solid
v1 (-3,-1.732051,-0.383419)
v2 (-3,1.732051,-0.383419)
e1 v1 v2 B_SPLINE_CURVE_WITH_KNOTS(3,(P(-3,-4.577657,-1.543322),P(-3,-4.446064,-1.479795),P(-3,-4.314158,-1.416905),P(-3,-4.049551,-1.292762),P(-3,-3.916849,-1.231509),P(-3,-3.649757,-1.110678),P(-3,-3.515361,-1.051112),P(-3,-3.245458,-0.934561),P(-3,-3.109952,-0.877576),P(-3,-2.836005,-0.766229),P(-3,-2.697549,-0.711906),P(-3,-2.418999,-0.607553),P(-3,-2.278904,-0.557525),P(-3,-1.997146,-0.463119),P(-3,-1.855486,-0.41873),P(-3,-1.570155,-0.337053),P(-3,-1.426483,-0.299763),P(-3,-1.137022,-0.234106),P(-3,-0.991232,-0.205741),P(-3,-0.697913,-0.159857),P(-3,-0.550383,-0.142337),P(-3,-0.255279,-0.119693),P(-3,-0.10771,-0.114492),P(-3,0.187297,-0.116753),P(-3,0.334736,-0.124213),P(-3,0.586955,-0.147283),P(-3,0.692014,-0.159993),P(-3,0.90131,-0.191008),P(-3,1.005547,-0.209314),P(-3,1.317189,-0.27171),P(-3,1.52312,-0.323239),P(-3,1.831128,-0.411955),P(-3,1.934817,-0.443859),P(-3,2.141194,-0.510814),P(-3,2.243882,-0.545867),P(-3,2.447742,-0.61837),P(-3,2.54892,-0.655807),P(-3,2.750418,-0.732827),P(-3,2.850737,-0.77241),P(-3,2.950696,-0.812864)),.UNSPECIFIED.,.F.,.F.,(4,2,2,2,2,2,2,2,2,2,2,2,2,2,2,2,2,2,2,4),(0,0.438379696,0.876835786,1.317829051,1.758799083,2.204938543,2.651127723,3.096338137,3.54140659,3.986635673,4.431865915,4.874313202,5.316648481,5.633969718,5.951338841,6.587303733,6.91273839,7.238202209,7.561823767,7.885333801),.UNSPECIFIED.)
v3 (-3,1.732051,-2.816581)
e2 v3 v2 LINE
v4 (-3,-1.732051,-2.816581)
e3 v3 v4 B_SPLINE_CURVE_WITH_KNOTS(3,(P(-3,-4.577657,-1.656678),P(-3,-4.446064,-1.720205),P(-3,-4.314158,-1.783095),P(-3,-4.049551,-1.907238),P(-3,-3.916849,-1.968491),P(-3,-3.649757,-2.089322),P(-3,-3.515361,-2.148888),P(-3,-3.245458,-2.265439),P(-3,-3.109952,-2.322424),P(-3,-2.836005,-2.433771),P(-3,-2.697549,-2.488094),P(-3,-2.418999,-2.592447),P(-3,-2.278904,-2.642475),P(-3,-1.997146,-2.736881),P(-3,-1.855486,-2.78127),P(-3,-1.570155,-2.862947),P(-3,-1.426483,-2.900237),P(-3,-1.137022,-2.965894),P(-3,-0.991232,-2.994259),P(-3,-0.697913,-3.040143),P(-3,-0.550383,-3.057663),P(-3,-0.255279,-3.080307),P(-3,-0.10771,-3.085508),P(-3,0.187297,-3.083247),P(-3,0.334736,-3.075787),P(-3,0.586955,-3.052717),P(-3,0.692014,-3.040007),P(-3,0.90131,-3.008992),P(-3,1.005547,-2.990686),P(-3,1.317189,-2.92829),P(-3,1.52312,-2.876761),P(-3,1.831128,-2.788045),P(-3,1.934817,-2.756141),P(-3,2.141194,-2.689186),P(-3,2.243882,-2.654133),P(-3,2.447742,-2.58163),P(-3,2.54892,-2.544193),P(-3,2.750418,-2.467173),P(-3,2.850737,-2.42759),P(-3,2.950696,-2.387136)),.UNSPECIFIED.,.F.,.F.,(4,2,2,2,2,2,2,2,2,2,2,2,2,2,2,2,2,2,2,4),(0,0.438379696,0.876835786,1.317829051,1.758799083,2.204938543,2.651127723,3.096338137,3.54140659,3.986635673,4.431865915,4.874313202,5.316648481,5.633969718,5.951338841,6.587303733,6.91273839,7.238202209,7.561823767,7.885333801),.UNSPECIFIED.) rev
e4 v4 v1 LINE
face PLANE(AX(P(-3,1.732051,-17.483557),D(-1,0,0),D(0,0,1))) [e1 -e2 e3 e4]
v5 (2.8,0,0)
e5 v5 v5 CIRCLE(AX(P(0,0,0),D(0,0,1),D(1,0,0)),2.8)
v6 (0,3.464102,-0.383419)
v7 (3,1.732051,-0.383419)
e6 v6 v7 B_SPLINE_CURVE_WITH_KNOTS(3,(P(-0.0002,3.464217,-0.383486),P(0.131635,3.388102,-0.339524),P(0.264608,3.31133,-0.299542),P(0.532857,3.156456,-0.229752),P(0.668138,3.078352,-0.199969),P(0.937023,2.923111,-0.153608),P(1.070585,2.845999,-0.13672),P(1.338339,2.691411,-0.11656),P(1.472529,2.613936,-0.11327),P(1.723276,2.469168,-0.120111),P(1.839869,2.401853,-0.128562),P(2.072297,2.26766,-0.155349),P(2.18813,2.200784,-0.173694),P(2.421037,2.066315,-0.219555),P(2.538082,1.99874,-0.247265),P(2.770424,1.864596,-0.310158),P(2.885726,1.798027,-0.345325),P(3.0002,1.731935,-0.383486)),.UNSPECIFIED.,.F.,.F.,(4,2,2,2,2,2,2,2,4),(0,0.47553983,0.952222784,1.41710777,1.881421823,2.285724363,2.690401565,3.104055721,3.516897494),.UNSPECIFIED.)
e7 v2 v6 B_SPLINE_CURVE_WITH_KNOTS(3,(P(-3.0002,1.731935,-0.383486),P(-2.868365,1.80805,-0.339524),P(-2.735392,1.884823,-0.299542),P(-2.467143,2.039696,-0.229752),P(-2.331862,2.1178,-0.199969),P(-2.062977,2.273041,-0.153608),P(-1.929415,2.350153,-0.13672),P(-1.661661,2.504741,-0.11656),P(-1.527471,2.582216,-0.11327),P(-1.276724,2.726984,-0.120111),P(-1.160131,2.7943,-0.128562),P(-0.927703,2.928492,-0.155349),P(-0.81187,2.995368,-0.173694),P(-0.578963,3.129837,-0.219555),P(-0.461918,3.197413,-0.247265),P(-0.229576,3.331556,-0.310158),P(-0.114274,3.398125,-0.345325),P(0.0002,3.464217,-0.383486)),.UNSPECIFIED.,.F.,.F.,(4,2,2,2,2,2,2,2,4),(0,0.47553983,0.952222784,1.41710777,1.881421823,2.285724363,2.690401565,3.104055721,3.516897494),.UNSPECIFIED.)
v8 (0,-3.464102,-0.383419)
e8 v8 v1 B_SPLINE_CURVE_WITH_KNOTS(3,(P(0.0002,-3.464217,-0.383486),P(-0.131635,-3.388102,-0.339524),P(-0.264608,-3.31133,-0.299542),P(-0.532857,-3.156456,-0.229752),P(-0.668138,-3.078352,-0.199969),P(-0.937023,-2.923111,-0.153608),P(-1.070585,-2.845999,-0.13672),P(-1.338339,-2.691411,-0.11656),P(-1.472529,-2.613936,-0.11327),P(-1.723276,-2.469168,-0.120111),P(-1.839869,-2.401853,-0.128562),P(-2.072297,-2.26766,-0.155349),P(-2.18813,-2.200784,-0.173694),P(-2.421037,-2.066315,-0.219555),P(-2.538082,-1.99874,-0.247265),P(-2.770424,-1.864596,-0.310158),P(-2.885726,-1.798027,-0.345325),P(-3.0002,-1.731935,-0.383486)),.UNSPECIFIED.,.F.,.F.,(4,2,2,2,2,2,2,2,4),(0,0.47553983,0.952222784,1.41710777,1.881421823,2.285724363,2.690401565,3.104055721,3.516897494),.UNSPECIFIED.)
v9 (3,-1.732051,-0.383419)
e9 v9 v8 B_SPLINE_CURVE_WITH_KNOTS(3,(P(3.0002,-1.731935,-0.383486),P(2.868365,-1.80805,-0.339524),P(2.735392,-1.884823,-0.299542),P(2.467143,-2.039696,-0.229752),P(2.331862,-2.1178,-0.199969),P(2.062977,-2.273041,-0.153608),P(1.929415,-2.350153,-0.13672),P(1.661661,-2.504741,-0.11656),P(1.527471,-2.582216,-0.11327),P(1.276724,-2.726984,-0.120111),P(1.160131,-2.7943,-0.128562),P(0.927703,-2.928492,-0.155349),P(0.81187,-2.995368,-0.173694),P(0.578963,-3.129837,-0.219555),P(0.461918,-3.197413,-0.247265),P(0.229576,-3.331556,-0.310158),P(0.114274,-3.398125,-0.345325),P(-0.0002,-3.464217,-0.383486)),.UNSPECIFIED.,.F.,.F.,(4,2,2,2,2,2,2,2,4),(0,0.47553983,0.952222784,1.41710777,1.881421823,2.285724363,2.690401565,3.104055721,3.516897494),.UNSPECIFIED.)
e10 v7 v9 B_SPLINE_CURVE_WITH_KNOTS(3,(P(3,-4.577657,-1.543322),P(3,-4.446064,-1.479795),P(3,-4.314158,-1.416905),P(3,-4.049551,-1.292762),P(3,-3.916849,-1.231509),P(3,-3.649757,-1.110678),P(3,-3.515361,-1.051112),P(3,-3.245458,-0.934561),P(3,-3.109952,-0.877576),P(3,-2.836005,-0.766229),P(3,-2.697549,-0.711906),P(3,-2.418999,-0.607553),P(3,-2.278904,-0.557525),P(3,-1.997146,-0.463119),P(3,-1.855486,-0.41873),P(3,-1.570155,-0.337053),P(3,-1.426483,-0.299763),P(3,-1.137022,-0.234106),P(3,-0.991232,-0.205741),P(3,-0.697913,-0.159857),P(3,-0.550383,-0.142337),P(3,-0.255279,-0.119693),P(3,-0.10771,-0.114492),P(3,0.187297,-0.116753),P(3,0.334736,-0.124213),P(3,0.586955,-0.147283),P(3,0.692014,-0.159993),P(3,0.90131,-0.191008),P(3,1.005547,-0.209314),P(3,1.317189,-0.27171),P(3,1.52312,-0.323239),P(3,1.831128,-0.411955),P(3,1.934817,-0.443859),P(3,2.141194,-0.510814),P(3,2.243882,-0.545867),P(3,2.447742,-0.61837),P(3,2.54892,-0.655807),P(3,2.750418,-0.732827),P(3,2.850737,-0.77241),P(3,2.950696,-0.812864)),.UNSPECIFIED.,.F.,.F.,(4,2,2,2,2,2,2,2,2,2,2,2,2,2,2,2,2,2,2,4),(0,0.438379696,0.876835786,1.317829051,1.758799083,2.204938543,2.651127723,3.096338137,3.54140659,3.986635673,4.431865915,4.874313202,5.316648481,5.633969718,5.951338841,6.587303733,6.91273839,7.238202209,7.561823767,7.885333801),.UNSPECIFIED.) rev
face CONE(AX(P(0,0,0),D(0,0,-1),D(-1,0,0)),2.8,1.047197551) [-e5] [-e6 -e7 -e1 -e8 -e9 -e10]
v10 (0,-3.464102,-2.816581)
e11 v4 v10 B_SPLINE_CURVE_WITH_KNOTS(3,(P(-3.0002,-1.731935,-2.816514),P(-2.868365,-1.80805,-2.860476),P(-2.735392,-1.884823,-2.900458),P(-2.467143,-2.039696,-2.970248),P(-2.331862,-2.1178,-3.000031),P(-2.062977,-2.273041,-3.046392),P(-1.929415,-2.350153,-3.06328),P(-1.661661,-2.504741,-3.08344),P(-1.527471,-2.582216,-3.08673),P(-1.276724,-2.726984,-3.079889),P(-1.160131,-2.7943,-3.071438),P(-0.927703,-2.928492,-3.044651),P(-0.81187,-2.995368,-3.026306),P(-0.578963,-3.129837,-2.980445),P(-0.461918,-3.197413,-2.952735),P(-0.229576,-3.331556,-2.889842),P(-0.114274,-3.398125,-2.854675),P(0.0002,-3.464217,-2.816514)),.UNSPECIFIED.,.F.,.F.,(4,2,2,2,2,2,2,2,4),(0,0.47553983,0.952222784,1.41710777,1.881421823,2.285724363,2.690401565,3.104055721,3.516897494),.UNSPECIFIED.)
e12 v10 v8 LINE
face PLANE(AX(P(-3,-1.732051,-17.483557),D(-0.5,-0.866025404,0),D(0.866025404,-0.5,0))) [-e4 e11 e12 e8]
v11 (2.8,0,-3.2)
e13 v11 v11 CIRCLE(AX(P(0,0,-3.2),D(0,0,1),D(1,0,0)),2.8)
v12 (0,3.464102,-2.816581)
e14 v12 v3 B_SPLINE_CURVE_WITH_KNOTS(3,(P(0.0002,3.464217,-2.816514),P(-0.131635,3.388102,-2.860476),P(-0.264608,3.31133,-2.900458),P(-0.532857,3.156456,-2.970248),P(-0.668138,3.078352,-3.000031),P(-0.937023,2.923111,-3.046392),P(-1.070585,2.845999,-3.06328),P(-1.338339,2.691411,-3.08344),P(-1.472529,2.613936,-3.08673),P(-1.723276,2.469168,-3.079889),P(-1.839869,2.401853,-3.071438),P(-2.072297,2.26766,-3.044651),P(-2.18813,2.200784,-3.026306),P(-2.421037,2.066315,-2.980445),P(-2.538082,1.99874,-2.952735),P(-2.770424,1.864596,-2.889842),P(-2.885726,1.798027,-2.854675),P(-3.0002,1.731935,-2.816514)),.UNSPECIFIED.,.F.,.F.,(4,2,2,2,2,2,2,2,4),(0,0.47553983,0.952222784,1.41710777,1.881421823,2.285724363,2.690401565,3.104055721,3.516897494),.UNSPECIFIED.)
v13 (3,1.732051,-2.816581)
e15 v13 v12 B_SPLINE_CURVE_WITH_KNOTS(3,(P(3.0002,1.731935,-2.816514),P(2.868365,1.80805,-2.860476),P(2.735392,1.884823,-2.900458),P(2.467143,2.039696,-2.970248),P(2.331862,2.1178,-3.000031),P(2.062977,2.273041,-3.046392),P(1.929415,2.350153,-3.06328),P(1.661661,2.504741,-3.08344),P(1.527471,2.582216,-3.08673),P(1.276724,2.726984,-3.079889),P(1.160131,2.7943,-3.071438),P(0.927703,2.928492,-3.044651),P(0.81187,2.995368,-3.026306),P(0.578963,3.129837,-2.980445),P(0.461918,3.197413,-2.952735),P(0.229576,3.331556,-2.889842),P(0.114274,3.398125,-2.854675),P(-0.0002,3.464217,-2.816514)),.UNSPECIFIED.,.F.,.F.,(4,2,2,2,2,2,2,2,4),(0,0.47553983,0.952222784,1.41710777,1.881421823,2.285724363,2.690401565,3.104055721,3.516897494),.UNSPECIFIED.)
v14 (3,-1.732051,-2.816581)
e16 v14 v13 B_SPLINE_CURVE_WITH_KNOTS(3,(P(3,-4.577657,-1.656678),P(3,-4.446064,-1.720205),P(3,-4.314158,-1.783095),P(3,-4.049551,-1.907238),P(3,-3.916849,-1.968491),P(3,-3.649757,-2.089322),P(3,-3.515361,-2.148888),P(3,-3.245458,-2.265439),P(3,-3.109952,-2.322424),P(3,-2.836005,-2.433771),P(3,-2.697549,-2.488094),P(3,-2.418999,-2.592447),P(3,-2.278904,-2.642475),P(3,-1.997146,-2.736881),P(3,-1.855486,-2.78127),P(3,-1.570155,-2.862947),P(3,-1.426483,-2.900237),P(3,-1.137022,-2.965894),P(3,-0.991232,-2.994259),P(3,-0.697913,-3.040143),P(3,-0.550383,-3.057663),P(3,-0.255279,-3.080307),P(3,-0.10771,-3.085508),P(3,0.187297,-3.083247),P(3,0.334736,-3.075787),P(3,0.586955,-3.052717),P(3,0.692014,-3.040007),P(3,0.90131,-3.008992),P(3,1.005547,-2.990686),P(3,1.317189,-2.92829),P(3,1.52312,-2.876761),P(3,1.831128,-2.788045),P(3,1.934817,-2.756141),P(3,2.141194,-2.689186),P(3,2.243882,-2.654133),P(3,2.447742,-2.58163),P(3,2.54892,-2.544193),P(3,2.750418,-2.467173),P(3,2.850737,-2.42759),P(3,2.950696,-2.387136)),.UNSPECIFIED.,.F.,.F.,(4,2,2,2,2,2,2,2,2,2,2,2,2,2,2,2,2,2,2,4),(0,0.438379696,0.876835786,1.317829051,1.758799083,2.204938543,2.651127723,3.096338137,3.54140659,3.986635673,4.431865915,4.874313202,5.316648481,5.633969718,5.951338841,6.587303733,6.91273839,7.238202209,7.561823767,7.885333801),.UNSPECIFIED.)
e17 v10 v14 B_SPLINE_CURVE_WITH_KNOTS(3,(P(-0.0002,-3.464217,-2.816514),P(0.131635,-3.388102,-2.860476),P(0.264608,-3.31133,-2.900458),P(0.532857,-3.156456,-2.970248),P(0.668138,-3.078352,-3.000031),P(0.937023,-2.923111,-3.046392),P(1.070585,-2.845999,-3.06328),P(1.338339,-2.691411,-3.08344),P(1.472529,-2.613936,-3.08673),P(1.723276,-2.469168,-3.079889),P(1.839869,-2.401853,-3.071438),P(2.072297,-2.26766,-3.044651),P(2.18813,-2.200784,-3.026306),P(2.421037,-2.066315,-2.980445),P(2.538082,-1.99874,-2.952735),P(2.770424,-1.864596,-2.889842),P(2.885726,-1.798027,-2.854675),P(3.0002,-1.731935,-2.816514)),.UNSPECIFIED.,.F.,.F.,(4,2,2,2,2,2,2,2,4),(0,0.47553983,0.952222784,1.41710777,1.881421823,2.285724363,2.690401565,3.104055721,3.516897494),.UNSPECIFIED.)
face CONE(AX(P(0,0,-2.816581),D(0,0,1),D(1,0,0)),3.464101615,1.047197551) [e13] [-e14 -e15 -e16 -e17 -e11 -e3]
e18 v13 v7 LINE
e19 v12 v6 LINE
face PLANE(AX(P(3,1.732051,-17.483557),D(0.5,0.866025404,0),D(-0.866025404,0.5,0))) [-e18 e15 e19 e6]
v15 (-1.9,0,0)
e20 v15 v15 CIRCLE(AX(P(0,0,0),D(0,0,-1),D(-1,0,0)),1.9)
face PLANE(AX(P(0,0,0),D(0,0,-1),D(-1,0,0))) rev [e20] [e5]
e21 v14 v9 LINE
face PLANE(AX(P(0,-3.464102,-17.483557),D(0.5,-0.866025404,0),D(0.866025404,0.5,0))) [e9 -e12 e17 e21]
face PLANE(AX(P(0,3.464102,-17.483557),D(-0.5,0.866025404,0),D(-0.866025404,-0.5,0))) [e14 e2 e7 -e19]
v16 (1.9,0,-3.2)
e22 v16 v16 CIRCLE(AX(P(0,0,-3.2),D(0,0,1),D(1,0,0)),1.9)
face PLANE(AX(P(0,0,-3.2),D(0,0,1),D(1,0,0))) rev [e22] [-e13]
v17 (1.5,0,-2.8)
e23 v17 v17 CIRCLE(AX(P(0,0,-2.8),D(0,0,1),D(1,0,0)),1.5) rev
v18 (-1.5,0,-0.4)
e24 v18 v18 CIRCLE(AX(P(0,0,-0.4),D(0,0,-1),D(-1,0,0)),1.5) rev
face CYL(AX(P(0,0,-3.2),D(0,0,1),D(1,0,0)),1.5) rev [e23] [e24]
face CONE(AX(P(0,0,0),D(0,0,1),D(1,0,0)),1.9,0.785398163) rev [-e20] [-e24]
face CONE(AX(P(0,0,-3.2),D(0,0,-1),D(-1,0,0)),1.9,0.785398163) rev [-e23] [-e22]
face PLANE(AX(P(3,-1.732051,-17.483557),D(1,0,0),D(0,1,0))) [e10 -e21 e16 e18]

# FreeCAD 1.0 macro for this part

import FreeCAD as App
import Part
import Sketcher

V = App.Vector
Q = App.Units.Quantity


def edges_at(feature, points):
    """Names of the edges that pass closest to the given points."""
    edges = feature.Shape.Edges
    near = lambda p: min(range(len(edges)), key=lambda i: edges[i].distToShape(Part.Vertex(*p))[0])
    return sorted({f"Edge{near(p) + 1}" for p in points})

doc = App.newDocument("Part")
body = doc.addObject("PartDesign::Body", "Body")

# Sketch on XZ plane
sketch1 = body.newObject("Sketcher::SketchObject", "Sketch")
sketch1.AttachmentSupport = (doc.getObject("XZ_Plane"), [""])
sketch1.MapMode = "FlatFace"
sketch1.addGeometry(Part.LineSegment(V(-5, -3.2, 0), V(-5, 0, 0)), False)
sketch1.addGeometry(Part.LineSegment(V(-5, 0, 0), V(0, 0, 0)), False)
sketch1.addGeometry(Part.LineSegment(V(0, 0, 0), V(0, -3.2, 0)), False)
sketch1.addGeometry(Part.LineSegment(V(0, -3.2, 0), V(-5, -3.2, 0)), False)
sketch1.addConstraint(Sketcher.Constraint("Coincident", 0, 2, 1, 1))
sketch1.addConstraint(Sketcher.Constraint("Coincident", 1, 2, 2, 1))
sketch1.addConstraint(Sketcher.Constraint("Coincident", 2, 2, 3, 1))
sketch1.addConstraint(Sketcher.Constraint("Coincident", 3, 2, 0, 1))
sketch1.addConstraint(Sketcher.Constraint("Vertical", 0))
sketch1.addConstraint(Sketcher.Constraint("Horizontal", 1))
sketch1.addConstraint(Sketcher.Constraint("Vertical", 2))
sketch1.addConstraint(Sketcher.Constraint("Horizontal", 3))
sketch1.addConstraint(Sketcher.Constraint("Coincident", 1, 2, -1, 1))
sketch1.addConstraint(Sketcher.Constraint("DistanceX", 1, 1, 1, 2, 5.0))
sketch1.addConstraint(Sketcher.Constraint("DistanceY", 0, 1, 0, 2, 3.2))
revolution = body.newObject("PartDesign::Revolution", "Revolution")
revolution.Profile = sketch1
revolution.ReferenceAxis = (sketch1, ["V_Axis"])
revolution.Angle = 360

# Sketch on XY plane
sketch2 = body.newObject("Sketcher::SketchObject", "Sketch001")
sketch2.AttachmentSupport = (doc.getObject("XY_Plane"), [""])
sketch2.MapMode = "FlatFace"
sketch2.addGeometry(Part.LineSegment(V(-7.5, 7.5, 0), V(-7.5, -7.5, 0)), False)
sketch2.addGeometry(Part.LineSegment(V(-7.5, -7.5, 0), V(7.5, -7.5, 0)), False)
sketch2.addGeometry(Part.LineSegment(V(7.5, -7.5, 0), V(7.5, 7.5, 0)), False)
sketch2.addGeometry(Part.LineSegment(V(7.5, 7.5, 0), V(-7.5, 7.5, 0)), False)
sketch2.addGeometry(Part.LineSegment(V(3, 1.7, 0), V(3, -1.7, 0)), False)
sketch2.addGeometry(Part.LineSegment(V(3, -1.7, 0), V(0, -3.5, 0)), False)
sketch2.addGeometry(Part.LineSegment(V(0, -3.5, 0), V(-3, -1.7, 0)), False)
sketch2.addGeometry(Part.LineSegment(V(-3, -1.7, 0), V(-3, 1.7, 0)), False)
sketch2.addGeometry(Part.LineSegment(V(-3, 1.7, 0), V(0, 3.5, 0)), False)
sketch2.addGeometry(Part.LineSegment(V(0, 3.5, 0), V(3, 1.7, 0)), False)
sketch2.addConstraint(Sketcher.Constraint("Coincident", 0, 2, 1, 1))
sketch2.addConstraint(Sketcher.Constraint("Coincident", 1, 2, 2, 1))
sketch2.addConstraint(Sketcher.Constraint("Coincident", 2, 2, 3, 1))
sketch2.addConstraint(Sketcher.Constraint("Coincident", 3, 2, 0, 1))
sketch2.addConstraint(Sketcher.Constraint("Coincident", 4, 2, 5, 1))
sketch2.addConstraint(Sketcher.Constraint("Coincident", 5, 2, 6, 1))
sketch2.addConstraint(Sketcher.Constraint("Coincident", 6, 2, 7, 1))
sketch2.addConstraint(Sketcher.Constraint("Coincident", 7, 2, 8, 1))
sketch2.addConstraint(Sketcher.Constraint("Coincident", 8, 2, 9, 1))
sketch2.addConstraint(Sketcher.Constraint("Coincident", 9, 2, 4, 1))
sketch2.addConstraint(Sketcher.Constraint("Vertical", 0))
sketch2.addConstraint(Sketcher.Constraint("Horizontal", 1))
sketch2.addConstraint(Sketcher.Constraint("Vertical", 2))
sketch2.addConstraint(Sketcher.Constraint("Horizontal", 3))
sketch2.addConstraint(Sketcher.Constraint("Vertical", 4))
sketch2.addConstraint(Sketcher.Constraint("Vertical", 7))
sketch2.addConstraint(Sketcher.Constraint("Symmetric", 0, 2, 2, 2, -1, 1))
sketch2.addConstraint(Sketcher.Constraint("Symmetric", 4, 2, 7, 2, -1, 1))
sketch2.addConstraint(Sketcher.Constraint("Symmetric", 5, 2, 8, 2, -1, 1))
sketch2.addConstraint(Sketcher.Constraint("PointOnObject", 5, 2, -2))
sketch2.addConstraint(Sketcher.Constraint("Parallel", 6, 9))
sketch2.addConstraint(Sketcher.Constraint("Horizontal", 4, 2, 6, 2))
sketch2.addConstraint(Sketcher.Constraint("Equal", 3, 0))
sketch2.addConstraint(Sketcher.Constraint("Angle", 5, Q("-150 deg")))
sketch2.addConstraint(Sketcher.Constraint("DistanceX", 1, 1, 1, 2, 14.9))
sketch2.addConstraint(Sketcher.Constraint("DistanceX", -1, 1, 4, 2, 3.0))
sketch2.addConstraint(Sketcher.Constraint("DistanceY", 4, 2, 4, 1, 3.464102))
pocket1 = body.newObject("PartDesign::Pocket", "Pocket")
pocket1.Profile = sketch2
pocket1.Length = 3.2

# Sketch on XY plane
sketch3 = body.newObject("Sketcher::SketchObject", "Sketch002")
sketch3.AttachmentSupport = (doc.getObject("XY_Plane"), [""])
sketch3.MapMode = "FlatFace"
sketch3.addGeometry(Part.Circle(V(0, 0, 0), V(0, 0, 1), 1.5), False)
sketch3.addConstraint(Sketcher.Constraint("Coincident", 0, 3, -1, 1))
sketch3.addConstraint(Sketcher.Constraint("Diameter", 0, 3.0))
pocket2 = body.newObject("PartDesign::Pocket", "Pocket001")
pocket2.Profile = sketch3
pocket2.Type = "ThroughAll"
pocket2.Midplane = True

# Sketch on YZ plane
sketch4 = body.newObject("Sketcher::SketchObject", "Sketch003")
sketch4.AttachmentSupport = (doc.getObject("YZ_Plane"), [""])
sketch4.MapMode = "FlatFace"
sketch4.addGeometry(Part.LineSegment(V(2.8, 0, 0), V(3.46, -0.38, 0)), False)
sketch4.addGeometry(Part.LineSegment(V(3.46, -0.38, 0), V(3.46, 0, 0)), False)
sketch4.addGeometry(Part.LineSegment(V(3.46, 0, 0), V(2.8, 0, 0)), False)
sketch4.addGeometry(Part.LineSegment(V(3.46, -2.82, 0), V(2.8, -3.2, 0)), False)
sketch4.addGeometry(Part.LineSegment(V(2.8, -3.2, 0), V(3.46, -3.2, 0)), False)
sketch4.addGeometry(Part.LineSegment(V(3.46, -3.2, 0), V(3.46, -2.82, 0)), False)
sketch4.addConstraint(Sketcher.Constraint("Coincident", 0, 2, 1, 1))
sketch4.addConstraint(Sketcher.Constraint("Coincident", 1, 2, 2, 1))
sketch4.addConstraint(Sketcher.Constraint("Coincident", 2, 2, 0, 1))
sketch4.addConstraint(Sketcher.Constraint("Coincident", 3, 2, 4, 1))
sketch4.addConstraint(Sketcher.Constraint("Coincident", 4, 2, 5, 1))
sketch4.addConstraint(Sketcher.Constraint("Coincident", 5, 2, 3, 1))
sketch4.addConstraint(Sketcher.Constraint("Vertical", 1))
sketch4.addConstraint(Sketcher.Constraint("Horizontal", 2))
sketch4.addConstraint(Sketcher.Constraint("Horizontal", 4))
sketch4.addConstraint(Sketcher.Constraint("Vertical", 5))
sketch4.addConstraint(Sketcher.Constraint("PointOnObject", 1, 2, -1))
sketch4.addConstraint(Sketcher.Constraint("Vertical", 2, 2, 3, 2))
sketch4.addConstraint(Sketcher.Constraint("Vertical", 1, 2, 4, 2))
sketch4.addConstraint(Sketcher.Constraint("Equal", 1, 5))
sketch4.addConstraint(Sketcher.Constraint("Angle", 0, Q("-30 deg")))
sketch4.addConstraint(Sketcher.Constraint("DistanceX", -1, 1, 2, 2, 2.8))
sketch4.addConstraint(Sketcher.Constraint("DistanceY", 3, 2, -1, 1, 3.2))
sketch4.addConstraint(Sketcher.Constraint("DistanceX", 2, 2, 2, 1, 0.664102))
groove = body.newObject("PartDesign::Groove", "Groove")
groove.Profile = sketch4
groove.ReferenceAxis = (sketch4, ["V_Axis"])
groove.Angle = 360
doc.recompute()

chamfer = body.newObject("PartDesign::Chamfer", "Chamfer")
chamfer.Base = (groove, edges_at(groove, [(-1.5, 0, -3.2), (-1.5, 0, 0)]))
chamfer.Size = 0.4

doc.recompute()
